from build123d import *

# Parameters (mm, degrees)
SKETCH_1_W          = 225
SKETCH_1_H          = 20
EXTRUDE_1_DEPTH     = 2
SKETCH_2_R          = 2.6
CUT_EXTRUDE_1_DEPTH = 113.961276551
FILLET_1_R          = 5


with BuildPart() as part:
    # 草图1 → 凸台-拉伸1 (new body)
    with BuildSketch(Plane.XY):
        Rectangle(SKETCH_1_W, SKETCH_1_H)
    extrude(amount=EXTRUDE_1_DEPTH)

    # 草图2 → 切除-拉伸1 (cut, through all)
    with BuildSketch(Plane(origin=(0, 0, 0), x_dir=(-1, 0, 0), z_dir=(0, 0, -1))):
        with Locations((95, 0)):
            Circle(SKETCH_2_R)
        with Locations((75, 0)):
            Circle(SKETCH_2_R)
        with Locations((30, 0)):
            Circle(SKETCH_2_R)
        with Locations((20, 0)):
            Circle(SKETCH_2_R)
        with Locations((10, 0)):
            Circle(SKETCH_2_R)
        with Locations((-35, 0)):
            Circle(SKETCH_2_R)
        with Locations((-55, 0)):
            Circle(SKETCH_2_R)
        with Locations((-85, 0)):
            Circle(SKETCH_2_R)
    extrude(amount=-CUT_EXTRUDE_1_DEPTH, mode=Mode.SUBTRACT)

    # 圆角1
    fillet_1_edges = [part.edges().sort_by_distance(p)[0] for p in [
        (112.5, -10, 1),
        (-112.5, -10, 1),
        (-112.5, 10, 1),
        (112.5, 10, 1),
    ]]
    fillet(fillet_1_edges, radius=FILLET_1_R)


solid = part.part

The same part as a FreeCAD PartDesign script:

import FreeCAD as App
import Part
import Sketcher

V = App.Vector


def edges_at(feature, points):
    """Names of the edges that pass closest to the given points."""
    edges = feature.Shape.Edges
    near = lambda p: min(range(len(edges)), key=lambda i: edges[i].distToShape(Part.Vertex(*p))[0])
    return sorted({f"Edge{near(p) + 1}" for p in points})


def add_polygon(sketch, points):
    """Adds a closed chain of lines whose ends are joined by coincident constraints."""
    first, n = sketch.GeometryCount, len(points)
    for a, b in zip(points, points[1:] + points[:1]):
        sketch.addGeometry(Part.LineSegment(App.Vector(*a, 0), App.Vector(*b, 0)), False)
    for i in range(n):
        sketch.addConstraint(Sketcher.Constraint("Coincident", first + i, 2, first + (i + 1) % n, 1))

doc = App.newDocument("Part")
body = doc.addObject("PartDesign::Body", "Body")

# Sketch on XY plane
sketch1 = body.newObject("Sketcher::SketchObject", "Sketch")
sketch1.AttachmentSupport = (doc.getObject("XY_Plane"), [""])
sketch1.MapMode = "FlatFace"
add_polygon(sketch1, [(-112, 10), (-112, -10), (112, -10), (112, 10)])  # lines 0-3
sketch1.addConstraint(Sketcher.Constraint("Vertical", 0))
sketch1.addConstraint(Sketcher.Constraint("Horizontal", 1))
sketch1.addConstraint(Sketcher.Constraint("Vertical", 2))
sketch1.addConstraint(Sketcher.Constraint("Horizontal", 3))
sketch1.addConstraint(Sketcher.Constraint("Symmetric", 0, 2, 2, 2, -1, 1))
sketch1.addConstraint(Sketcher.Constraint("DistanceX", 1, 1, 1, 2, 225.0))
sketch1.addConstraint(Sketcher.Constraint("DistanceY", 0, 2, 0, 1, 20.0))
pad1 = body.newObject("PartDesign::Pad", "Pad")
pad1.Profile = sketch1
pad1.Length = 2

# Sketch on XY plane
sketch2 = body.newObject("Sketcher::SketchObject", "Sketch001")
sketch2.AttachmentSupport = (doc.getObject("XY_Plane"), [""])
sketch2.MapMode = "FlatFace"
sketch2.addGeometry(Part.Circle(V(-95, 0, 0), V(0, 0, 1), 2.6), False)
sketch2.addGeometry(Part.Circle(V(-75, 0, 0), V(0, 0, 1), 2.6), False)
sketch2.addGeometry(Part.Circle(V(-30, 0, 0), V(0, 0, 1), 2.6), False)
sketch2.addGeometry(Part.Circle(V(-20, 0, 0), V(0, 0, 1), 2.6), False)
sketch2.addGeometry(Part.Circle(V(-10, 0, 0), V(0, 0, 1), 2.6), False)
sketch2.addGeometry(Part.Circle(V(35, 0, 0), V(0, 0, 1), 2.6), False)
sketch2.addGeometry(Part.Circle(V(55, 0, 0), V(0, 0, 1), 2.6), False)
sketch2.addGeometry(Part.Circle(V(85, 0, 0), V(0, 0, 1), 2.6), False)
sketch2.addConstraint(Sketcher.Constraint("Equal", 0, 1))
sketch2.addConstraint(Sketcher.Constraint("Equal", 1, 2))
sketch2.addConstraint(Sketcher.Constraint("Equal", 2, 3))
sketch2.addConstraint(Sketcher.Constraint("Equal", 3, 4))
sketch2.addConstraint(Sketcher.Constraint("Equal", 4, 5))
sketch2.addConstraint(Sketcher.Constraint("Equal", 5, 6))
sketch2.addConstraint(Sketcher.Constraint("Equal", 6, 7))
sketch2.addConstraint(Sketcher.Constraint("PointOnObject", 0, 3, -1))
sketch2.addConstraint(Sketcher.Constraint("PointOnObject", 1, 3, -1))
sketch2.addConstraint(Sketcher.Constraint("PointOnObject", 2, 3, -1))
sketch2.addConstraint(Sketcher.Constraint("PointOnObject", 3, 3, -1))
sketch2.addConstraint(Sketcher.Constraint("PointOnObject", 4, 3, -1))
sketch2.addConstraint(Sketcher.Constraint("PointOnObject", 5, 3, -1))
sketch2.addConstraint(Sketcher.Constraint("PointOnObject", 6, 3, -1))
sketch2.addConstraint(Sketcher.Constraint("PointOnObject", 7, 3, -1))
sketch2.addConstraint(Sketcher.Constraint("Diameter", 0, 5.2))
sketch2.addConstraint(Sketcher.Constraint("DistanceX", 0, 3, -1, 1, 95.0))
sketch2.addConstraint(Sketcher.Constraint("DistanceX", 1, 3, -1, 1, 75.0))
sketch2.addConstraint(Sketcher.Constraint("DistanceX", 2, 3, -1, 1, 30.0))
sketch2.addConstraint(Sketcher.Constraint("DistanceX", 3, 3, -1, 1, 20.0))
sketch2.addConstraint(Sketcher.Constraint("DistanceX", 4, 3, -1, 1, 10.0))
sketch2.addConstraint(Sketcher.Constraint("DistanceX", -1, 1, 5, 3, 35.0))
sketch2.addConstraint(Sketcher.Constraint("DistanceX", -1, 1, 6, 3, 55.0))
sketch2.addConstraint(Sketcher.Constraint("DistanceX", -1, 1, 7, 3, 85.0))
pocket1 = body.newObject("PartDesign::Pocket", "Pocket")
pocket1.Profile = sketch2
pocket1.Type = "ThroughAll"
pocket1.Reversed = True
doc.recompute()

fillet = body.newObject("PartDesign::Fillet", "Fillet")
fillet.Base = (pocket1, edges_at(pocket1, [
    (112.5, -10, 1),
    (-112.5, -10, 1),
    (-112.5, 10, 1),
    (112.5, 10, 1),
]))
fillet.Radius = 5

doc.recompute()
